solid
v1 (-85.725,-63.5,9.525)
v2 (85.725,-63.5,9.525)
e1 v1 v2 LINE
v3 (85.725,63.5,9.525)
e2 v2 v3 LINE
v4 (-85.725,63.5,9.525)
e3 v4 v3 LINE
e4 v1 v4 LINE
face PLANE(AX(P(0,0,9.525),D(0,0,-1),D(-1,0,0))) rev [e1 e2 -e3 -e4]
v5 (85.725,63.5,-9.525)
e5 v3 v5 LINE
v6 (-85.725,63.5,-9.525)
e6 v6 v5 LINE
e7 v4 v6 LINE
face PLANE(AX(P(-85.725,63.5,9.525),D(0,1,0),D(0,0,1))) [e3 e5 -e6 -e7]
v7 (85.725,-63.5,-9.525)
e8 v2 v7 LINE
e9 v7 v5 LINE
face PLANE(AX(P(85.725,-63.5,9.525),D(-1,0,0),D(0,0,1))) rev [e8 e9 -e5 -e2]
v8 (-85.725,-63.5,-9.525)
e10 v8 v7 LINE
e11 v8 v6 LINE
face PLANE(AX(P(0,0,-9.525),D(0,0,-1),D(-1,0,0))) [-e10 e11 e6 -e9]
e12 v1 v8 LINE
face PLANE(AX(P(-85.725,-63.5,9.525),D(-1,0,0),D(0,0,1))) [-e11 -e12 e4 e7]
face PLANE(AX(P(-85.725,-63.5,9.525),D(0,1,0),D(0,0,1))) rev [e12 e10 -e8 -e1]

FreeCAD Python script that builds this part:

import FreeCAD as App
import Part
import Sketcher
Q = App.Units.Quantity

doc = App.newDocument("Part")
params = doc.addObject("Spreadsheet::Sheet", "Params")
for row, (alias, value) in enumerate([
    ("sketch1_height", "5 in"),
    ("sketch1_width", "6.75 in"),
    ("pad1_length", "0.75 in"),
], start=1):
    params.set(f"A{row}", alias)
    params.set(f"B{row}", "=" + value)
    params.setAlias(f"B{row}", alias)

body = doc.addObject("PartDesign::Body", "Body")

sketch1 = body.newObject("Sketcher::SketchObject", "Sketch")
sketch1.AttachmentSupport = (doc.getObject("XY_Plane"), [""])
sketch1.MapMode = "FlatFace"
sketch1.addGeometry([
    Part.LineSegment(App.Vector(-86, 64, 0), App.Vector(-86, -64, 0)),
    Part.LineSegment(App.Vector(-86, -64, 0), App.Vector(86, -64, 0)),
    Part.LineSegment(App.Vector(86, -64, 0), App.Vector(86, 64, 0)),
    Part.LineSegment(App.Vector(86, 64, 0), App.Vector(-86, 64, 0)),
], False)
sketch1.addConstraint([
    Sketcher.Constraint("Coincident", 0, 2, 1, 1),
    Sketcher.Constraint("Coincident", 1, 2, 2, 1),
    Sketcher.Constraint("Coincident", 2, 2, 3, 1),
    Sketcher.Constraint("Coincident", 3, 2, 0, 1),
    Sketcher.Constraint("Vertical", 0),
    Sketcher.Constraint("Horizontal", 1),
    Sketcher.Constraint("Vertical", 2),
    Sketcher.Constraint("Horizontal", 3),
    Sketcher.Constraint("Symmetric", 0, 2, 2, 2, -1, 1),
    Sketcher.Constraint("DistanceY", 0, 2, 0, 1, Q("5 in")),
    Sketcher.Constraint("DistanceX", 1, 1, 1, 2, Q("6.75 in")),
])
sketch1.setExpression("Constraints[9]", "Params.sketch1_height")
sketch1.setExpression("Constraints[10]", "Params.sketch1_width")
pad1 = body.newObject("PartDesign::Pad", "Pad")
pad1.Profile = sketch1
pad1.setExpression("Length", "Params.pad1_length")
pad1.Midplane = True

doc.recompute()
